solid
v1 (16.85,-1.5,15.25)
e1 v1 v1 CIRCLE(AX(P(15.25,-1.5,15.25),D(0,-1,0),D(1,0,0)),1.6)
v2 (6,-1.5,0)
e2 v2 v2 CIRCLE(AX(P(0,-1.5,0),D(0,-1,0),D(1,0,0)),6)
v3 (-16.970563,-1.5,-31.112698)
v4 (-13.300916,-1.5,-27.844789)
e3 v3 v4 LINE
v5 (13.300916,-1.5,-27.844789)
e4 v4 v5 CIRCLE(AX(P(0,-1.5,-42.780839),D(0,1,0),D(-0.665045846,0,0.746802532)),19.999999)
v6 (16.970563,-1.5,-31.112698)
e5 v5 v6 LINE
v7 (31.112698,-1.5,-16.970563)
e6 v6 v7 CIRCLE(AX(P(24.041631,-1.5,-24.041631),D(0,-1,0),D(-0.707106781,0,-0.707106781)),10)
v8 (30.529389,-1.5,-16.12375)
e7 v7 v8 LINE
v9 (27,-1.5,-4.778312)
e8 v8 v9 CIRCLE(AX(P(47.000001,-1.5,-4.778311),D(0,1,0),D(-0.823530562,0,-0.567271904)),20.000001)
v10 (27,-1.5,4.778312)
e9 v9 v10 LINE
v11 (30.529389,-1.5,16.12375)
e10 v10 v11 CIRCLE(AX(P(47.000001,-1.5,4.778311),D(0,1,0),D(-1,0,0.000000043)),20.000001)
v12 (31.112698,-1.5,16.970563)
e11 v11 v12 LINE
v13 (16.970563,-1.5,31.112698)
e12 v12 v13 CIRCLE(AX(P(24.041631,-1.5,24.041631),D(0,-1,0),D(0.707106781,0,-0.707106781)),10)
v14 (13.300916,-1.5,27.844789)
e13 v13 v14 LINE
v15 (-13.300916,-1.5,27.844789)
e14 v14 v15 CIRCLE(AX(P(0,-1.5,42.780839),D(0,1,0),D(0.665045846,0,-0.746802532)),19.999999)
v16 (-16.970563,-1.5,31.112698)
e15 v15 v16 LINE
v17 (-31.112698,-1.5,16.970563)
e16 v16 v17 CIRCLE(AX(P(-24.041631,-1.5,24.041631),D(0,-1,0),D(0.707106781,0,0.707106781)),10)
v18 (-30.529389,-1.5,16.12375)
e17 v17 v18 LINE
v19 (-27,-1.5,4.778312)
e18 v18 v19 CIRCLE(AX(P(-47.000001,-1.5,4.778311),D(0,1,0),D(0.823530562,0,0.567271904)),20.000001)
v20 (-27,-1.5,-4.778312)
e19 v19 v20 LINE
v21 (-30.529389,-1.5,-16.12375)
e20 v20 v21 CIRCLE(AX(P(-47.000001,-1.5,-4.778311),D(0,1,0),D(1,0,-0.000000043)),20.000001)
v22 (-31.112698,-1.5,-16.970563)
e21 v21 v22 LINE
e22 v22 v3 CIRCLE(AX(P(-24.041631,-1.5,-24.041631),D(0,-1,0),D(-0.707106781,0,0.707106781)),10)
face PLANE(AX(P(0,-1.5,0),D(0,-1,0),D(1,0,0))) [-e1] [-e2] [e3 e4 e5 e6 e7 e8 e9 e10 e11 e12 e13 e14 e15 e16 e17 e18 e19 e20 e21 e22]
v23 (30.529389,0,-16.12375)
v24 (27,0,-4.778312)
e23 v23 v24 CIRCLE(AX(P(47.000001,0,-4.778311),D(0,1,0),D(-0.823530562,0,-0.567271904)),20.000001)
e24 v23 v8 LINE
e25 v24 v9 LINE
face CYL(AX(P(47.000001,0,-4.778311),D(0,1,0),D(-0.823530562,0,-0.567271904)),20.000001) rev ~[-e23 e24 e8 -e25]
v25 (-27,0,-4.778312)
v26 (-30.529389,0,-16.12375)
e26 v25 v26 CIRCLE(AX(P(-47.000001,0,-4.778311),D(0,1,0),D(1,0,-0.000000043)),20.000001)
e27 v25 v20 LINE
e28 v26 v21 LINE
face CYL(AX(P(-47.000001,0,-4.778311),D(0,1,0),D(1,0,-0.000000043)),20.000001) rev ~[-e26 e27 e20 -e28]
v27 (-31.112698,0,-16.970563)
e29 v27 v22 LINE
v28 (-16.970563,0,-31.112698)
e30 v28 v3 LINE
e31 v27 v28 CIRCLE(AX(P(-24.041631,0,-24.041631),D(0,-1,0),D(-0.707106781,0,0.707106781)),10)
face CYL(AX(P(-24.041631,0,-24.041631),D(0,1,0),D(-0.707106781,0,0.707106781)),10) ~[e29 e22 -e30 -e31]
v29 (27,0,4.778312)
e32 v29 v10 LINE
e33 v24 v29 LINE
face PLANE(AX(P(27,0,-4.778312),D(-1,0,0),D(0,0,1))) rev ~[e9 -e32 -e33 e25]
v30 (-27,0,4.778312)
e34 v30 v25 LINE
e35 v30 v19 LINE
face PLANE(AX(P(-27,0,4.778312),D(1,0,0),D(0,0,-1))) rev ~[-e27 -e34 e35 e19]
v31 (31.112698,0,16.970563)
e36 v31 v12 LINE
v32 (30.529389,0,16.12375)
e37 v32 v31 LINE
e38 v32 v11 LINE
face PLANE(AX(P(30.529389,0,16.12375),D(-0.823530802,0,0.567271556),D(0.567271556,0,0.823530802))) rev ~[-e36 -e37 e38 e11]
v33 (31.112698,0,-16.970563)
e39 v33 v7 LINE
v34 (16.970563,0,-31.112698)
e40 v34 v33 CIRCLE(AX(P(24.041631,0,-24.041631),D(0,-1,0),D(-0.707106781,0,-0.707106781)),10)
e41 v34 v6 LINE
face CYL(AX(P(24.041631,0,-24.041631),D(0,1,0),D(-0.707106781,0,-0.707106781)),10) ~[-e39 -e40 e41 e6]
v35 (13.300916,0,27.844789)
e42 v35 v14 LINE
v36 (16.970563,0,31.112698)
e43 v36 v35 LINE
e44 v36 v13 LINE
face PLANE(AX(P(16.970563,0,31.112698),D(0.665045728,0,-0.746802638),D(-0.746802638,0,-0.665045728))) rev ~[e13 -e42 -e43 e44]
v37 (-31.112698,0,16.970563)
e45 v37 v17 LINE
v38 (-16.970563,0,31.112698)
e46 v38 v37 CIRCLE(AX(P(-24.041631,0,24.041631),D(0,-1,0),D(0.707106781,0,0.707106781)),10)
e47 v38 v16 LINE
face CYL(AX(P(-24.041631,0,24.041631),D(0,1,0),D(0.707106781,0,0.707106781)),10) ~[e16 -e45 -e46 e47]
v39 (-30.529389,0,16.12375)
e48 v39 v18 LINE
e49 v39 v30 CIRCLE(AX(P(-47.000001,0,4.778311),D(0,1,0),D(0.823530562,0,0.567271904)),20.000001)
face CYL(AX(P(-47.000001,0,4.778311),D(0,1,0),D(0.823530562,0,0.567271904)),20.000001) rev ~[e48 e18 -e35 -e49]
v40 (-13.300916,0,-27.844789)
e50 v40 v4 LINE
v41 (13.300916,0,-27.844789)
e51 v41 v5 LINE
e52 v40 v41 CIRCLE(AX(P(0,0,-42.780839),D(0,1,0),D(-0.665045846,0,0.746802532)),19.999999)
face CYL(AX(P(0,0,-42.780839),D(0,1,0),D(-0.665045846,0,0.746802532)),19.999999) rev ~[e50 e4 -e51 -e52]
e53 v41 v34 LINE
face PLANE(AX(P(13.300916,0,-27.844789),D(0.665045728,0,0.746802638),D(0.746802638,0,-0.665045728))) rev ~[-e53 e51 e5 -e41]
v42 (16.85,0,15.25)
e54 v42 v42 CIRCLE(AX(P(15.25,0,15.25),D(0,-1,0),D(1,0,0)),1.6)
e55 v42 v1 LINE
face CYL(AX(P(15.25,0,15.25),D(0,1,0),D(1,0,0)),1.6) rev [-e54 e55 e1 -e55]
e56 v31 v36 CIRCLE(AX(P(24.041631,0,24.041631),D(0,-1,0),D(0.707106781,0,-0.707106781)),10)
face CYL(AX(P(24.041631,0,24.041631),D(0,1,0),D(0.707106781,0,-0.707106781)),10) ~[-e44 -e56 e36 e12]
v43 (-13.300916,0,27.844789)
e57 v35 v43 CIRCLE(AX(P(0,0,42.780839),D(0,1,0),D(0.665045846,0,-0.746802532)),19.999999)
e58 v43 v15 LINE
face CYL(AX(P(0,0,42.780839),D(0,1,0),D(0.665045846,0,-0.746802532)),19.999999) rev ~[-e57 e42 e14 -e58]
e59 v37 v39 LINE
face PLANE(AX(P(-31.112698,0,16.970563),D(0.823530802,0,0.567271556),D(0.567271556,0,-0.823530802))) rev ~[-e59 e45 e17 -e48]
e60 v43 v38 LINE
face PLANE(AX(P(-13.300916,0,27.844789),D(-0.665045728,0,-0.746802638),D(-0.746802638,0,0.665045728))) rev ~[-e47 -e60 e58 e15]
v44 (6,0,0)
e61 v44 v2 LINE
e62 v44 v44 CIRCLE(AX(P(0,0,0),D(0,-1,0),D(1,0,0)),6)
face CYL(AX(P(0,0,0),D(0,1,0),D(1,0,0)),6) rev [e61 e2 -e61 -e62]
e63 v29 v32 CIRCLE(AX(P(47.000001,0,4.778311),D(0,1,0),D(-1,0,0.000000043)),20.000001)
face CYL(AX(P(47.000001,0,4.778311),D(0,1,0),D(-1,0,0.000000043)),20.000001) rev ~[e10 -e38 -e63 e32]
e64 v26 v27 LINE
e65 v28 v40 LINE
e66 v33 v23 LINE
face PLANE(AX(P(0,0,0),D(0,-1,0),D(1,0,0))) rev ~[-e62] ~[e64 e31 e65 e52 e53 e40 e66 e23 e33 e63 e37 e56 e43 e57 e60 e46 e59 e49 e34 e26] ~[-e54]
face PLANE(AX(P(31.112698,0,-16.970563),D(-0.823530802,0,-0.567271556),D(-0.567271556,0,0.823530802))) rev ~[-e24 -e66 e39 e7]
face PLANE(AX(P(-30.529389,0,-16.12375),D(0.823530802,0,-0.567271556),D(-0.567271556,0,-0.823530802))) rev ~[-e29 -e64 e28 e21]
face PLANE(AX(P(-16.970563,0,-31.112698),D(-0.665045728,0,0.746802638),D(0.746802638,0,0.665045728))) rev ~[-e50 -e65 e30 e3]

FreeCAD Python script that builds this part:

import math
import FreeCAD as App
import Part
import Sketcher

doc = App.newDocument("Part")
body = doc.addObject("PartDesign::Body", "Body")

# Sketch on XZ plane
sketch1 = doc.addObject("Sketcher::SketchObject", "Sketch")
body.addObject(sketch1)
sketch1.AttachmentSupport = (doc.XZ_Plane, [""])
sketch1.MapMode = "FlatFace"
sketch1.addGeometry(Part.ArcOfCircle(Part.Circle(App.Vector(24, 24, 0), App.Vector(0, 0, 1), 10), math.radians(-45), math.radians(135)), False)
sketch1.addGeometry(Part.LineSegment(App.Vector(17, 31.1, 0), App.Vector(13.3, 27.8, 0)), False)
sketch1.addGeometry(Part.ArcOfCircle(Part.Circle(App.Vector(0, 42.8, 0), App.Vector(0, 0, 1), 20), math.radians(-132), math.radians(-48)), False)
sketch1.addGeometry(Part.LineSegment(App.Vector(-13.3, 27.8, 0), App.Vector(-17, 31.1, 0)), False)
sketch1.addGeometry(Part.ArcOfCircle(Part.Circle(App.Vector(-24, 24, 0), App.Vector(0, 0, 1), 10), math.radians(45), math.radians(225)), False)
sketch1.addGeometry(Part.LineSegment(App.Vector(-31.1, 17, 0), App.Vector(-30.5, 16.1, 0)), False)
sketch1.addGeometry(Part.ArcOfCircle(Part.Circle(App.Vector(-47, 4.8, 0), App.Vector(0, 0, 1), 20), math.radians(0), math.radians(35)), False)
sketch1.addGeometry(Part.LineSegment(App.Vector(-27, 4.8, 0), App.Vector(-27, -4.8, 0)), False)
sketch1.addGeometry(Part.ArcOfCircle(Part.Circle(App.Vector(-47, -4.8, 0), App.Vector(0, 0, 1), 20), math.radians(-35), math.radians(0)), False)
sketch1.addGeometry(Part.LineSegment(App.Vector(-30.5, -16.1, 0), App.Vector(-31.1, -17, 0)), False)
sketch1.addGeometry(Part.ArcOfCircle(Part.Circle(App.Vector(-24, -24, 0), App.Vector(0, 0, 1), 10), math.radians(135), math.radians(315)), False)
sketch1.addGeometry(Part.LineSegment(App.Vector(-17, -31.1, 0), App.Vector(-13.3, -27.8, 0)), False)
sketch1.addGeometry(Part.ArcOfCircle(Part.Circle(App.Vector(0, -42.8, 0), App.Vector(0, 0, 1), 20), math.radians(48), math.radians(132)), False)
sketch1.addGeometry(Part.LineSegment(App.Vector(13.3, -27.8, 0), App.Vector(17, -31.1, 0)), False)
sketch1.addGeometry(Part.ArcOfCircle(Part.Circle(App.Vector(24, -24, 0), App.Vector(0, 0, 1), 10), math.radians(-135), math.radians(45)), False)
sketch1.addGeometry(Part.LineSegment(App.Vector(31.1, -17, 0), App.Vector(30.5, -16.1, 0)), False)
sketch1.addGeometry(Part.ArcOfCircle(Part.Circle(App.Vector(47, -4.8, 0), App.Vector(0, 0, 1), 20), math.radians(-180), math.radians(-145)), False)
sketch1.addGeometry(Part.LineSegment(App.Vector(27, -4.8, 0), App.Vector(27, 4.8, 0)), False)
sketch1.addGeometry(Part.ArcOfCircle(Part.Circle(App.Vector(47, 4.8, 0), App.Vector(0, 0, 1), 20), math.radians(145), math.radians(180)), False)
sketch1.addGeometry(Part.LineSegment(App.Vector(30.5, 16.1, 0), App.Vector(31.1, 17, 0)), False)
sketch1.addGeometry(Part.Circle(App.Vector(0, 0, 0), App.Vector(0, 0, 1), 6), False)
sketch1.addGeometry(Part.Circle(App.Vector(15.2, 15.2, 0), App.Vector(0, 0, 1), 1.6), False)
sketch1.addConstraint(Sketcher.Constraint("Coincident", 0, 2, 1, 1))
sketch1.addConstraint(Sketcher.Constraint("Tangent", 1, 2, 2, 2))
sketch1.addConstraint(Sketcher.Constraint("Tangent", 2, 1, 3, 1))
sketch1.addConstraint(Sketcher.Constraint("Coincident", 3, 2, 4, 1))
sketch1.addConstraint(Sketcher.Constraint("Coincident", 4, 2, 5, 1))
sketch1.addConstraint(Sketcher.Constraint("Tangent", 5, 2, 6, 2))
sketch1.addConstraint(Sketcher.Constraint("Tangent", 6, 1, 7, 1))
sketch1.addConstraint(Sketcher.Constraint("Tangent", 7, 2, 8, 2))
sketch1.addConstraint(Sketcher.Constraint("Tangent", 8, 1, 9, 1))
sketch1.addConstraint(Sketcher.Constraint("Coincident", 9, 2, 10, 1))
sketch1.addConstraint(Sketcher.Constraint("Coincident", 10, 2, 11, 1))
sketch1.addConstraint(Sketcher.Constraint("Tangent", 11, 2, 12, 2))
sketch1.addConstraint(Sketcher.Constraint("Tangent", 12, 1, 13, 1))
sketch1.addConstraint(Sketcher.Constraint("Coincident", 13, 2, 14, 1))
sketch1.addConstraint(Sketcher.Constraint("Coincident", 14, 2, 15, 1))
sketch1.addConstraint(Sketcher.Constraint("Tangent", 15, 2, 16, 2))
sketch1.addConstraint(Sketcher.Constraint("Tangent", 16, 1, 17, 1))
sketch1.addConstraint(Sketcher.Constraint("Tangent", 17, 2, 18, 2))
sketch1.addConstraint(Sketcher.Constraint("Tangent", 18, 1, 19, 1))
sketch1.addConstraint(Sketcher.Constraint("Coincident", 19, 2, 0, 1))
sketch1.addConstraint(Sketcher.Constraint("Vertical", 7))
sketch1.addConstraint(Sketcher.Constraint("Vertical", 17))
sketch1.addConstraint(Sketcher.Constraint("Coincident", 20, 3, -1, 1))
sketch1.addConstraint(Sketcher.Constraint("Equal", 0, 4))
sketch1.addConstraint(Sketcher.Constraint("Equal", 6, 8))
sketch1.addConstraint(Sketcher.Constraint("Equal", 4, 10))
sketch1.addConstraint(Sketcher.Constraint("Equal", 2, 12))
sketch1.addConstraint(Sketcher.Constraint("Equal", 10, 14))
sketch1.addConstraint(Sketcher.Constraint("Equal", 8, 16))
sketch1.addConstraint(Sketcher.Constraint("Equal", 16, 18))
sketch1.addConstraint(Sketcher.Constraint("Symmetric", 0, 3, 10, 3, -1, 1))
sketch1.addConstraint(Sketcher.Constraint("Symmetric", 2, 3, 12, 3, -1, 1))
sketch1.addConstraint(Sketcher.Constraint("Symmetric", 4, 3, 14, 3, -1, 1))
sketch1.addConstraint(Sketcher.Constraint("Symmetric", 6, 3, 16, 3, -1, 1))
sketch1.addConstraint(Sketcher.Constraint("Symmetric", 8, 1, 18, 1, -1, 1))
sketch1.addConstraint(Sketcher.Constraint("Symmetric", 0, 3, 4, 3, -2))
sketch1.addConstraint(Sketcher.Constraint("Symmetric", 1, 2, 2, 1, -2))
sketch1.addConstraint(Sketcher.Constraint("Symmetric", 8, 1, 15, 2, -2))
sketch1.addConstraint(Sketcher.Constraint("Parallel", 1, 11))
sketch1.addConstraint(Sketcher.Constraint("Parallel", 3, 13))
sketch1.addConstraint(Sketcher.Constraint("Parallel", 5, 15))
sketch1.addConstraint(Sketcher.Constraint("Diameter", 20, 12.0))
sketch1.addConstraint(Sketcher.Constraint("Radius", 0, 10.0))
sketch1.addConstraint(Sketcher.Constraint("Radius", 2, 19.999999))
sketch1.addConstraint(Sketcher.Constraint("Radius", 6, 20.000001))
sketch1.addConstraint(Sketcher.Constraint("Diameter", 21, 3.2))
sketch1.addConstraint(Sketcher.Constraint("DistanceX", 6, 3, -1, 1, 47.000001))
sketch1.addConstraint(Sketcher.Constraint("DistanceX", -1, 1, 21, 3, 15.25))
sketch1.addConstraint(Sketcher.Constraint("DistanceY", -1, 1, 21, 3, 15.25))
sketch1.addConstraint(Sketcher.Constraint("DistanceY", -1, 1, 0, 2, 31.112698))
sketch1.addConstraint(Sketcher.Constraint("DistanceX", 4, 2, -1, 1, 31.112698))
sketch1.addConstraint(Sketcher.Constraint("Distance", 1, 4.913811))
sketch1.addConstraint(Sketcher.Constraint("Distance", 5, 1.028271))
sketch1.addConstraint(Sketcher.Constraint("DistanceY", 7, 2, 7, 1, 9.556624))
sketch1.addConstraint(Sketcher.Constraint("DistanceX", -1, 1, 0, 3, 24.041631))
pad1 = doc.addObject("PartDesign::Pad", "Pad")
body.addObject(pad1)
pad1.Profile = sketch1
pad1.Length = 1.5

doc.recompute()
